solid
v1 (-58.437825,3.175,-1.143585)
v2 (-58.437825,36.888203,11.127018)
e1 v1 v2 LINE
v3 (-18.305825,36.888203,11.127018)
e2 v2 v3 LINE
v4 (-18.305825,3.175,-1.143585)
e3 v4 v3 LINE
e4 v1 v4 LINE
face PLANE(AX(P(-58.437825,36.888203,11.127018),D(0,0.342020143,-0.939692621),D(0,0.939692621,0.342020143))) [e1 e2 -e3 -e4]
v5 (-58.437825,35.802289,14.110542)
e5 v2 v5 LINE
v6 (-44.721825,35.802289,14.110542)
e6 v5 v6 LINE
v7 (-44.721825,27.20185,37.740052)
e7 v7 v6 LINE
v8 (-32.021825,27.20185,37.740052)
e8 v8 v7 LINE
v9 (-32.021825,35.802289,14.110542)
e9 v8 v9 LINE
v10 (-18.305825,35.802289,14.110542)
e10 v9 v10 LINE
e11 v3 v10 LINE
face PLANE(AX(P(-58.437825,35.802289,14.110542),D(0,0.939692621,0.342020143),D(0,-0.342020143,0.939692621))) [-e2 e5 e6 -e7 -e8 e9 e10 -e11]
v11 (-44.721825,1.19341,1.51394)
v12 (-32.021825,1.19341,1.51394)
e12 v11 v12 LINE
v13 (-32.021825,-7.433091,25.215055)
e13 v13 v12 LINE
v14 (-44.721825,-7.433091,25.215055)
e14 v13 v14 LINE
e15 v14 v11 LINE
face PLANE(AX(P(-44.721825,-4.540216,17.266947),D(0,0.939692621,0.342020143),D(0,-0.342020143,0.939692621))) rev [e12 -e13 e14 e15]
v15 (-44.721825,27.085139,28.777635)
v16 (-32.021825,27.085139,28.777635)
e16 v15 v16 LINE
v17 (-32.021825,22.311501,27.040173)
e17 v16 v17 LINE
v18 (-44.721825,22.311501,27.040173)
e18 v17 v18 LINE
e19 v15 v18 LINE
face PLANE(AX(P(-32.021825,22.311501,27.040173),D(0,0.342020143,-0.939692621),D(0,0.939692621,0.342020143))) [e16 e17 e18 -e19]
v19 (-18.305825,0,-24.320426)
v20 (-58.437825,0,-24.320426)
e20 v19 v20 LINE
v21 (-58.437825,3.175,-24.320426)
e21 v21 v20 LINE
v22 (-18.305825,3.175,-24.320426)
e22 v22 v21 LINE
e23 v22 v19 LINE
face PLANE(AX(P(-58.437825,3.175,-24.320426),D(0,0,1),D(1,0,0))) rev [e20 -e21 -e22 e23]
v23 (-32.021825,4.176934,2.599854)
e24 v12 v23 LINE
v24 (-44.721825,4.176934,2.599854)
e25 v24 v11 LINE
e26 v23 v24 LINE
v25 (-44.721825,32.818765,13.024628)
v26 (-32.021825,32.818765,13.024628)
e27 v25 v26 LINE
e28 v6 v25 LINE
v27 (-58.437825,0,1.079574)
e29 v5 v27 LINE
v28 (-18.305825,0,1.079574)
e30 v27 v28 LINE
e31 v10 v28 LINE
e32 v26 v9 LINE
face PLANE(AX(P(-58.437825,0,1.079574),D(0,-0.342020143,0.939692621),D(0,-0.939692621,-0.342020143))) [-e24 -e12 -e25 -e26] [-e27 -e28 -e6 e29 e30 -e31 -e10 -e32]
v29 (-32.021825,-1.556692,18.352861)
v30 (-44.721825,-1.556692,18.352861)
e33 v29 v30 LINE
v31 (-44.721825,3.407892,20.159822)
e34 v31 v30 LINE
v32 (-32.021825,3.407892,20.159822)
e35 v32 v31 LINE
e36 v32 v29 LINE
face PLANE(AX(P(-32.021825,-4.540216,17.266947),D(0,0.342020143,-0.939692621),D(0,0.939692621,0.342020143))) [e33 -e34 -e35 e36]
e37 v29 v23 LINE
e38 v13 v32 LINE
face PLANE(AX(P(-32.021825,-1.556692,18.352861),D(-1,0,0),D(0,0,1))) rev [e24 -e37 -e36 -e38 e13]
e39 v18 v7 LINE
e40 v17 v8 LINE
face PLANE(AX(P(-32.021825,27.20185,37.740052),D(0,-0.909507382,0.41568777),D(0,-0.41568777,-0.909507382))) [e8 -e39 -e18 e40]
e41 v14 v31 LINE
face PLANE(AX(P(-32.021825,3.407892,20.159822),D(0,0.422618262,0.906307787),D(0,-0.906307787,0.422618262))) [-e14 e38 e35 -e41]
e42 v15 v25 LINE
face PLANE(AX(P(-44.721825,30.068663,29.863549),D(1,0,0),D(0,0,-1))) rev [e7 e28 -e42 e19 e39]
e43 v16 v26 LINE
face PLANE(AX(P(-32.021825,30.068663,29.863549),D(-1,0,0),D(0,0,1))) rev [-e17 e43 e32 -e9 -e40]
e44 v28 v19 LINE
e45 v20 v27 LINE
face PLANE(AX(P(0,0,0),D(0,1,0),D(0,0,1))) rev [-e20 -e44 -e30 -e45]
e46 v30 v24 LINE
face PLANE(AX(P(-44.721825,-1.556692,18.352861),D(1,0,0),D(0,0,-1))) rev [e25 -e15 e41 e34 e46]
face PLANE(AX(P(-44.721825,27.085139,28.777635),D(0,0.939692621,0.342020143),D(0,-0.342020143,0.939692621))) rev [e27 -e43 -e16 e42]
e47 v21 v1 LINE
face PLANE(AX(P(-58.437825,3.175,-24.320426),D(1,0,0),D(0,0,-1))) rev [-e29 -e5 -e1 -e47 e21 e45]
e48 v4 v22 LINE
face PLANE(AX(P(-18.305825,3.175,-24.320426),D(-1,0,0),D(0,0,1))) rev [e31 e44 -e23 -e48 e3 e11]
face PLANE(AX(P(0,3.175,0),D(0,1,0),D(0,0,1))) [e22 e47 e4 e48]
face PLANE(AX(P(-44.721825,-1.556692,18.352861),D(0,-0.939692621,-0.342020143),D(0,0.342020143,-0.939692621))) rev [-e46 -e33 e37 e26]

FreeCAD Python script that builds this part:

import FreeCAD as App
import Part
import Sketcher
from FreeCAD import Vector
Q = App.Units.Quantity

doc = App.newDocument("Part")
params = doc.addObject("Spreadsheet::Sheet", "Params")
for row, (alias, value) in enumerate([
    ("sketch1_height", "1 in"),
    ("sketch1_width", "1.58 in"),
    ("pad1_length", "0.125 in"),
    ("sketch2_length", "1.5 in"),
    ("sketch2_length2", "0.125 in"),
    ("pad2_length", "1.58 in"),
    ("sketch3_width", "0.5 in"),
    ("sketch3_height", "0.125 in"),
    ("pad3_length", "0.66 in"),
    ("sketch4_length", "0.33 in"),
    ("sketch4_length2", "0.325 in"),
    ("sketch4_length3", "0.333 in"),
    ("pad4_length", "0.5 in"),
], start=1):
    params.set(f"A{row}", alias)
    params.set(f"B{row}", "=" + value)
    params.setAlias(f"B{row}", alias)

body = doc.addObject("PartDesign::Body", "Body")

# Sketch on XZ plane
sketch1 = doc.addObject("Sketcher::SketchObject", "Sketch")
body.addObject(sketch1)
sketch1.AttachmentSupport = (doc.XZ_Plane, [""])
sketch1.MapMode = "FlatFace"
sketch1.addGeometry(Part.LineSegment(Vector(-58, -24, 0), Vector(-58, 1, 0)), False)
sketch1.addGeometry(Part.LineSegment(Vector(-58, 1, 0), Vector(-18, 1, 0)), False)
sketch1.addGeometry(Part.LineSegment(Vector(-18, 1, 0), Vector(-18, -24, 0)), False)
sketch1.addGeometry(Part.LineSegment(Vector(-18, -24, 0), Vector(-58, -24, 0)), False)
sketch1.addConstraint(Sketcher.Constraint("Coincident", 0, 2, 1, 1))
sketch1.addConstraint(Sketcher.Constraint("Coincident", 1, 2, 2, 1))
sketch1.addConstraint(Sketcher.Constraint("Coincident", 2, 2, 3, 1))
sketch1.addConstraint(Sketcher.Constraint("Coincident", 3, 2, 0, 1))
sketch1.addConstraint(Sketcher.Constraint("Vertical", 0))
sketch1.addConstraint(Sketcher.Constraint("Horizontal", 1))
sketch1.addConstraint(Sketcher.Constraint("Vertical", 2))
sketch1.addConstraint(Sketcher.Constraint("Horizontal", 3))
sketch1.addConstraint(Sketcher.Constraint("DistanceY", 0, 1, 0, 2, Q("1 in")))
sketch1.addConstraint(Sketcher.Constraint("DistanceX", 1, 1, 1, 2, Q("1.58 in")))
sketch1.addConstraint(Sketcher.Constraint("DistanceX", 0, 2, -1, 1, Q("58.437825 mm")))
sketch1.addConstraint(Sketcher.Constraint("DistanceY", -1, 1, 0, 2, Q("1.079574 mm")))
sketch1.setExpression("Constraints[8]", "Params.sketch1_height")
sketch1.setExpression("Constraints[9]", "Params.sketch1_width")
pad1 = doc.addObject("PartDesign::Pad", "Pad")
body.addObject(pad1)
pad1.Profile = sketch1
pad1.setExpression("Length", "Params.pad1_length")
pad1.Reversed = True

# Sketch on YZ plane
sketch2 = doc.addObject("Sketcher::SketchObject", "Sketch001")
body.addObject(sketch2)
sketch2.AttachmentSupport = (doc.YZ_Plane, [""])
sketch2.MapMode = "FlatFace"
sketch2.AttachmentOffset = App.Placement(Vector(0, 0, -18.305825), App.Rotation())
sketch2.addGeometry(Part.LineSegment(Vector(35.8, 14.1, 0), Vector(0, 1.1, 0)), False)
sketch2.addGeometry(Part.LineSegment(Vector(0, 1.1, 0), Vector(3.2, -1.1, 0)), False)
sketch2.addGeometry(Part.LineSegment(Vector(3.2, -1.1, 0), Vector(36.9, 11.1, 0)), False)
sketch2.addGeometry(Part.LineSegment(Vector(36.9, 11.1, 0), Vector(35.8, 14.1, 0)), False)
sketch2.addConstraint(Sketcher.Constraint("Coincident", 0, 2, 1, 1))
sketch2.addConstraint(Sketcher.Constraint("Coincident", 1, 2, 2, 1))
sketch2.addConstraint(Sketcher.Constraint("Coincident", 2, 2, 3, 1))
sketch2.addConstraint(Sketcher.Constraint("Coincident", 3, 2, 0, 1))
sketch2.addConstraint(Sketcher.Constraint("PointOnObject", 0, 2, -2))
sketch2.addConstraint(Sketcher.Constraint("Parallel", 0, 2))
sketch2.addConstraint(Sketcher.Constraint("Perpendicular", 2, 3))
sketch2.addConstraint(Sketcher.Constraint("Angle", 0, Q("-160 deg")))
sketch2.addConstraint(Sketcher.Constraint("Angle", 1, Q("-35 deg")))
sketch2.addConstraint(Sketcher.Constraint("Distance", 0, Q("1.5 in")))
sketch2.addConstraint(Sketcher.Constraint("Distance", 3, Q("0.125 in")))
sketch2.addConstraint(Sketcher.Constraint("DistanceY", -1, 1, 3, 2, Q("14.110542 mm")))
sketch2.setExpression("Constraints[9]", "Params.sketch2_length")
sketch2.setExpression("Constraints[10]", "Params.sketch2_length2")
pad2 = doc.addObject("PartDesign::Pad", "Pad001")
body.addObject(pad2)
pad2.Profile = sketch2
pad2.setExpression("Length", "Params.pad2_length")
pad2.Reversed = True

# Sketch on an angled plane
sketch3 = doc.addObject("Sketcher::SketchObject", "Sketch002")
body.addObject(sketch3)
sketch3.Placement = App.Placement(Vector(0, -0.346968, 0.953288), App.Rotation(Vector(1, 0, 0), Vector(0, 0.939692621, 0.342020143), Vector(0, -0.342020143, 0.939692621), "ZXY"))
sketch3.addGeometry(Part.LineSegment(Vector(-44.7, 38.5, 0), Vector(-44.7, 35.3, 0)), False)
sketch3.addGeometry(Part.LineSegment(Vector(-44.7, 35.3, 0), Vector(-32, 35.3, 0)), False)
sketch3.addGeometry(Part.LineSegment(Vector(-32, 35.3, 0), Vector(-32, 38.5, 0)), False)
sketch3.addGeometry(Part.LineSegment(Vector(-32, 38.5, 0), Vector(-44.7, 38.5, 0)), False)
sketch3.addGeometry(Part.LineSegment(Vector(-44.7, 4.8, 0), Vector(-44.7, 1.6, 0)), False)
sketch3.addGeometry(Part.LineSegment(Vector(-44.7, 1.6, 0), Vector(-32, 1.6, 0)), False)
sketch3.addGeometry(Part.LineSegment(Vector(-32, 1.6, 0), Vector(-32, 4.8, 0)), False)
sketch3.addGeometry(Part.LineSegment(Vector(-32, 4.8, 0), Vector(-44.7, 4.8, 0)), False)
sketch3.addConstraint(Sketcher.Constraint("Coincident", 0, 2, 1, 1))
sketch3.addConstraint(Sketcher.Constraint("Coincident", 1, 2, 2, 1))
sketch3.addConstraint(Sketcher.Constraint("Coincident", 2, 2, 3, 1))
sketch3.addConstraint(Sketcher.Constraint("Coincident", 3, 2, 0, 1))
sketch3.addConstraint(Sketcher.Constraint("Coincident", 4, 2, 5, 1))
sketch3.addConstraint(Sketcher.Constraint("Coincident", 5, 2, 6, 1))
sketch3.addConstraint(Sketcher.Constraint("Coincident", 6, 2, 7, 1))
sketch3.addConstraint(Sketcher.Constraint("Coincident", 7, 2, 4, 1))
sketch3.addConstraint(Sketcher.Constraint("Vertical", 0))
sketch3.addConstraint(Sketcher.Constraint("Horizontal", 1))
sketch3.addConstraint(Sketcher.Constraint("Vertical", 2))
sketch3.addConstraint(Sketcher.Constraint("Horizontal", 3))
sketch3.addConstraint(Sketcher.Constraint("Vertical", 4))
sketch3.addConstraint(Sketcher.Constraint("Horizontal", 5))
sketch3.addConstraint(Sketcher.Constraint("Vertical", 6))
sketch3.addConstraint(Sketcher.Constraint("Horizontal", 7))
sketch3.addConstraint(Sketcher.Constraint("Vertical", 3, 2, 4, 2))
sketch3.addConstraint(Sketcher.Constraint("Vertical", 2, 2, 5, 2))
sketch3.addConstraint(Sketcher.Constraint("Equal", 2, 4))
sketch3.addConstraint(Sketcher.Constraint("DistanceX", 1, 1, 1, 2, Q("0.5 in")))
sketch3.addConstraint(Sketcher.Constraint("DistanceY", 6, 2, 1, 2, Q("1.2 in")))
sketch3.addConstraint(Sketcher.Constraint("DistanceY", 0, 2, 0, 1, Q("0.125 in")))
sketch3.addConstraint(Sketcher.Constraint("DistanceX", 0, 2, -1, 1, Q("44.721825 mm")))
sketch3.addConstraint(Sketcher.Constraint("DistanceY", -1, 1, 0, 2, Q("35.294236 mm")))
sketch3.setExpression("Constraints[19]", "Params.sketch3_width")
sketch3.setExpression("Constraints[21]", "Params.sketch3_height")
pad3 = doc.addObject("PartDesign::Pad", "Pad002")
body.addObject(pad3)
pad3.Profile = sketch3
pad3.setExpression("Length", "Params.pad3_length")

# Sketch on YZ plane
sketch4 = doc.addObject("Sketcher::SketchObject", "Sketch003")
body.addObject(sketch4)
sketch4.AttachmentSupport = (doc.YZ_Plane, [""])
sketch4.MapMode = "FlatFace"
sketch4.AttachmentOffset = App.Placement(Vector(0, 0, -44.721825), App.Rotation())
sketch4.addGeometry(Part.LineSegment(Vector(27, 38, 0), Vector(30, 30, 0)), False)
sketch4.addGeometry(Part.LineSegment(Vector(30, 30, 0), Vector(22, 27, 0)), False)
sketch4.addGeometry(Part.LineSegment(Vector(22, 27, 0), Vector(27, 38, 0)), False)
sketch4.addGeometry(Part.LineSegment(Vector(3, 20, 0), Vector(-5, 17, 0)), False)
sketch4.addGeometry(Part.LineSegment(Vector(-5, 17, 0), Vector(-7, 25, 0)), False)
sketch4.addGeometry(Part.LineSegment(Vector(-7, 25, 0), Vector(3, 20, 0)), False)
sketch4.addConstraint(Sketcher.Constraint("Coincident", 0, 2, 1, 1))
sketch4.addConstraint(Sketcher.Constraint("Coincident", 1, 2, 2, 1))
sketch4.addConstraint(Sketcher.Constraint("Coincident", 2, 2, 0, 1))
sketch4.addConstraint(Sketcher.Constraint("Coincident", 3, 2, 4, 1))
sketch4.addConstraint(Sketcher.Constraint("Coincident", 4, 2, 5, 1))
sketch4.addConstraint(Sketcher.Constraint("Coincident", 5, 2, 3, 1))
sketch4.addConstraint(Sketcher.Constraint("Perpendicular", 0, 1))
sketch4.addConstraint(Sketcher.Constraint("Parallel", 1, 3))
sketch4.addConstraint(Sketcher.Constraint("Perpendicular", 3, 4))
sketch4.addConstraint(Sketcher.Constraint("Equal", 3, 4))
sketch4.addConstraint(Sketcher.Constraint("Angle", 0, Q("-70 deg")))
sketch4.addConstraint(Sketcher.Constraint("Distance", 0, Q("0.33 in")))
sketch4.addConstraint(Sketcher.Constraint("Distance", 1, Q("0.325 in")))
sketch4.addConstraint(Sketcher.Constraint("Distance", 3, Q("0.333 in")))
sketch4.addConstraint(Sketcher.Constraint("DistanceX", -1, 1, 1, 2, Q("22.311501 mm")))
sketch4.addConstraint(Sketcher.Constraint("DistanceY", 3, 2, 0, 2, Q("12.596602 mm")))
sketch4.addConstraint(Sketcher.Constraint("DistanceY", -1, 1, 0, 2, Q("29.863549 mm")))
sketch4.addConstraint(Sketcher.Constraint("DistanceX", 4, 2, -1, 1, Q("7.433091 mm")))
sketch4.setExpression("Constraints[11]", "Params.sketch4_length")
sketch4.setExpression("Constraints[12]", "Params.sketch4_length2")
sketch4.setExpression("Constraints[13]", "Params.sketch4_length3")
pad4 = doc.addObject("PartDesign::Pad", "Pad003")
body.addObject(pad4)
pad4.Profile = sketch4
pad4.setExpression("Length", "Params.pad4_length")

doc.recompute()
